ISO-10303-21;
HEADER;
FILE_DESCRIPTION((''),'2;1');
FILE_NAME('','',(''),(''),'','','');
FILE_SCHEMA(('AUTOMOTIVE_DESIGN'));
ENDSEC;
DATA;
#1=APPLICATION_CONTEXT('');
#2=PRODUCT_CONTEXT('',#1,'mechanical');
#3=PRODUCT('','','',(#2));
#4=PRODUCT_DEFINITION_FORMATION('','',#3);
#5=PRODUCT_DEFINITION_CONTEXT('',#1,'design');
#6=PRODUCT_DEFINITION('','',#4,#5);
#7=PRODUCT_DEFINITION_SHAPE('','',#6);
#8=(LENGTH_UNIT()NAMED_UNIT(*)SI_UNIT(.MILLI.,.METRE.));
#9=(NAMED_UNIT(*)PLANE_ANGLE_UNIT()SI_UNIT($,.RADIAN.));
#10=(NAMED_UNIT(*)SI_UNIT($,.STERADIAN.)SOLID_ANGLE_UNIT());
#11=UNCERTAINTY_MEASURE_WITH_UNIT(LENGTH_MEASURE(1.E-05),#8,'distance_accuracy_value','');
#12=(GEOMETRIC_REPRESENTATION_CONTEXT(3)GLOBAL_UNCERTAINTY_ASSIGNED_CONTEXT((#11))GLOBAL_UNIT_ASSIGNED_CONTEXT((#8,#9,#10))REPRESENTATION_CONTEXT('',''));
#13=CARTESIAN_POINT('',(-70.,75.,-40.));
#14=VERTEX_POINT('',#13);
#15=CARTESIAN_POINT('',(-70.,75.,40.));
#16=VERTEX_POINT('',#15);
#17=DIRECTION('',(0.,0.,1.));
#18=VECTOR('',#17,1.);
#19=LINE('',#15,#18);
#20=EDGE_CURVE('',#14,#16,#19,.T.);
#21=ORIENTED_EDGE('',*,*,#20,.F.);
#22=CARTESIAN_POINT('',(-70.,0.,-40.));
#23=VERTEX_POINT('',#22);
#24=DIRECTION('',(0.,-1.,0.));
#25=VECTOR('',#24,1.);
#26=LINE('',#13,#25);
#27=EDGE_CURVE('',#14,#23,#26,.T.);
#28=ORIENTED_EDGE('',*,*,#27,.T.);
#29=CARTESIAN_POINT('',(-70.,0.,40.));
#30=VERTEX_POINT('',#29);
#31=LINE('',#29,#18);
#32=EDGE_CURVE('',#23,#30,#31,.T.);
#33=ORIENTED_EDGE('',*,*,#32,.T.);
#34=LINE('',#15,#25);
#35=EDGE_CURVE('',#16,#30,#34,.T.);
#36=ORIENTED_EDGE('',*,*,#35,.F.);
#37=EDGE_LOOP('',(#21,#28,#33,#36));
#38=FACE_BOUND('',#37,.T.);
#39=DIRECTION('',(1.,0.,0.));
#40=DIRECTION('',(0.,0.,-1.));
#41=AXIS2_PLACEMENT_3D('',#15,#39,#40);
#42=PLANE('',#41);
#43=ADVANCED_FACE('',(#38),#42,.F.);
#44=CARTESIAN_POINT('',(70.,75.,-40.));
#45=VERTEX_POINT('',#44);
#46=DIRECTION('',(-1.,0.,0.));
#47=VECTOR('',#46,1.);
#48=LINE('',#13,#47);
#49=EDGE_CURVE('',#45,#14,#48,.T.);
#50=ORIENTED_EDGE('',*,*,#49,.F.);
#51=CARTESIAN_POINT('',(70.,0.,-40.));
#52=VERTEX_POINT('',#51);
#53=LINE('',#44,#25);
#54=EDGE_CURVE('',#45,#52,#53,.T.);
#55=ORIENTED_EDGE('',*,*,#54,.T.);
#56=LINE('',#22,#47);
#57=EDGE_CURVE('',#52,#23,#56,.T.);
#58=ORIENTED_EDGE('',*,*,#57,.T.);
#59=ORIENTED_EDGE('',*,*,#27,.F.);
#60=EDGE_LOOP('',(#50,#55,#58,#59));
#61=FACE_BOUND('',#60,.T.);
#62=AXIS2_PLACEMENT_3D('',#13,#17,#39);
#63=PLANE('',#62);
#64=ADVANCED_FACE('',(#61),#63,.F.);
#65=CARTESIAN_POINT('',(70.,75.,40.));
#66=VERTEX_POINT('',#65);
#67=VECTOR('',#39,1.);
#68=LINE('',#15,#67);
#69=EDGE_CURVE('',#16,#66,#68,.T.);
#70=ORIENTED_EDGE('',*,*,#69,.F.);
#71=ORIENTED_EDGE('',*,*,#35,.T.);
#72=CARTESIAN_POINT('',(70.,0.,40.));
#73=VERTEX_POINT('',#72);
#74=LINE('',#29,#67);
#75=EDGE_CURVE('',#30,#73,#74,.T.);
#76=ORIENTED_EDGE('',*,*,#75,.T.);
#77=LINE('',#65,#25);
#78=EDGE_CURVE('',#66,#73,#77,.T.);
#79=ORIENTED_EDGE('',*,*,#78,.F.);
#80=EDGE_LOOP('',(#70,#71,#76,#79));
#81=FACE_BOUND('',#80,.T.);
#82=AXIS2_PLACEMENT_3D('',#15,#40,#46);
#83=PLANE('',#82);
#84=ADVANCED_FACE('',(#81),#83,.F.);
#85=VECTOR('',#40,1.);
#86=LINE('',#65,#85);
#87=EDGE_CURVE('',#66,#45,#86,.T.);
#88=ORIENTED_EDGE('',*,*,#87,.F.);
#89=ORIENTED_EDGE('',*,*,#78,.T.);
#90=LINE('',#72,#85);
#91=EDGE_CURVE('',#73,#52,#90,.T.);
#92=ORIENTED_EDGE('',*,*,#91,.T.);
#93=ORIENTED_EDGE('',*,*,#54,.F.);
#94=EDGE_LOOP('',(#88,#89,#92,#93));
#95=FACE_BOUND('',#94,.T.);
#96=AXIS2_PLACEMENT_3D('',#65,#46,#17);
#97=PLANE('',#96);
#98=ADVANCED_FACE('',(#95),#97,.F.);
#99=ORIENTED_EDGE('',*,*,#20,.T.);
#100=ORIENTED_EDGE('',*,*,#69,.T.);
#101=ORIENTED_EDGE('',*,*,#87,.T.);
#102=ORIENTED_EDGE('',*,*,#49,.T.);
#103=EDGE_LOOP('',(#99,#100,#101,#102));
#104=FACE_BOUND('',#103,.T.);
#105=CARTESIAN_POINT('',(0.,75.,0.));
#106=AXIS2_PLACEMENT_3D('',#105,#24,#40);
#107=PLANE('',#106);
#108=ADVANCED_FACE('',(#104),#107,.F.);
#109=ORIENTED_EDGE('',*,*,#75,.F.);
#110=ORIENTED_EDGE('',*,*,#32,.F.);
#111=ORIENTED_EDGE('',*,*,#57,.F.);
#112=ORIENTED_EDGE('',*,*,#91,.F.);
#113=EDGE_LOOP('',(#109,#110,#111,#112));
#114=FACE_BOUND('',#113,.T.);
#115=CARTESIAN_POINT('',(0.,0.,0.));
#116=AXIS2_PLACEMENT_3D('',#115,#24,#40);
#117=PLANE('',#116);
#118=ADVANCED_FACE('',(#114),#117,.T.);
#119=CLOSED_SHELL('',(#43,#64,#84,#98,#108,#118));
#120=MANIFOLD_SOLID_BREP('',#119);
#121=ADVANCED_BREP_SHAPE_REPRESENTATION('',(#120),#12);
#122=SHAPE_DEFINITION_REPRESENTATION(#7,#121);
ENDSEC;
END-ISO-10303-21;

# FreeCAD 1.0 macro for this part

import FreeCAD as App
import Part
import Sketcher


def add_polygon(sketch, points):
    """Adds a closed chain of lines whose ends are joined by coincident constraints."""
    first, n = sketch.GeometryCount, len(points)
    for a, b in zip(points, points[1:] + points[:1]):
        sketch.addGeometry(Part.LineSegment(App.Vector(*a, 0), App.Vector(*b, 0)), False)
    for i in range(n):
        sketch.addConstraint(Sketcher.Constraint("Coincident", first + i, 2, first + (i + 1) % n, 1))

doc = App.newDocument("Part")
body = doc.addObject("PartDesign::Body", "Body")

# Sketch on XZ plane
sketch1 = body.newObject("Sketcher::SketchObject", "Sketch")
sketch1.AttachmentSupport = (doc.getObject("XZ_Plane"), [""])
sketch1.MapMode = "FlatFace"
add_polygon(sketch1, [(-70, -40), (-70, 40), (70, 40), (70, -40)])  # lines 0-3
sketch1.addConstraint([
    Sketcher.Constraint("Vertical", 0),
    Sketcher.Constraint("Horizontal", 1),
    Sketcher.Constraint("Vertical", 2),
    Sketcher.Constraint("Horizontal", 3),
    Sketcher.Constraint("Symmetric", 0, 2, 2, 2, -1, 1),
    Sketcher.Constraint("DistanceX", 1, 1, 1, 2, 140.0),
    Sketcher.Constraint("DistanceY", 0, 1, 0, 2, 80.0),
])
pad1 = body.newObject("PartDesign::Pad", "Pad")
pad1.Profile = sketch1
pad1.Length = 75
pad1.Reversed = True

doc.recompute()
